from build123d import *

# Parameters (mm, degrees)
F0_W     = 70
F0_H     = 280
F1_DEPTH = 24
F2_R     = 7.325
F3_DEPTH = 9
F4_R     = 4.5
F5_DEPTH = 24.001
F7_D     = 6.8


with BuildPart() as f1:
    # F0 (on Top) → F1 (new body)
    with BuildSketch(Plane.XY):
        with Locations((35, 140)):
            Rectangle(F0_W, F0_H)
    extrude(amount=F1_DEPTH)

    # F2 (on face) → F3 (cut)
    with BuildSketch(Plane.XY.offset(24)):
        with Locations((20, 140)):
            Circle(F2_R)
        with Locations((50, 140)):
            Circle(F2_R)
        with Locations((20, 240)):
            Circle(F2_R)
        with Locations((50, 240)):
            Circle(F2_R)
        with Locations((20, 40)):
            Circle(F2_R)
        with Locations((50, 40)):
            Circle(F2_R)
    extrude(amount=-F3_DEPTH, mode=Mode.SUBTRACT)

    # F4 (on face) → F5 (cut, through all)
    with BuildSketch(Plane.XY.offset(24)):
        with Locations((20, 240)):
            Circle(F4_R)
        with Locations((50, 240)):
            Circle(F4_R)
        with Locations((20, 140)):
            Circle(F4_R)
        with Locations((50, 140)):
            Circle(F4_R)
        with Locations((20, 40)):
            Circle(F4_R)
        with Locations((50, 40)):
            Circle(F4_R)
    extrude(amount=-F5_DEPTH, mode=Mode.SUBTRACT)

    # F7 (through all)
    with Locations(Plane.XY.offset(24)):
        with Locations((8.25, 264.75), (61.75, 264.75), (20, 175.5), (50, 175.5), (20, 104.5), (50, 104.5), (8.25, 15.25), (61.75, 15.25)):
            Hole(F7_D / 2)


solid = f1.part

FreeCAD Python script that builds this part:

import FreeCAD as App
import Part
import Sketcher

V = App.Vector

doc = App.newDocument("Part")
body = doc.addObject("PartDesign::Body", "Body")

# Sketch on XY plane
sketch1 = doc.addObject("Sketcher::SketchObject", "Sketch")
body.addObject(sketch1)
sketch1.AttachmentSupport = (doc.XY_Plane, [""])
sketch1.MapMode = "FlatFace"
sketch1.addGeometry(Part.LineSegment(V(0, 280, 0), V(0, 0, 0)), False)
sketch1.addGeometry(Part.LineSegment(V(0, 0, 0), V(70, 0, 0)), False)
sketch1.addGeometry(Part.LineSegment(V(70, 0, 0), V(70, 280, 0)), False)
sketch1.addGeometry(Part.LineSegment(V(70, 280, 0), V(0, 280, 0)), False)
sketch1.addConstraint(Sketcher.Constraint("Coincident", 0, 2, 1, 1))
sketch1.addConstraint(Sketcher.Constraint("Coincident", 1, 2, 2, 1))
sketch1.addConstraint(Sketcher.Constraint("Coincident", 2, 2, 3, 1))
sketch1.addConstraint(Sketcher.Constraint("Coincident", 3, 2, 0, 1))
sketch1.addConstraint(Sketcher.Constraint("Vertical", 0))
sketch1.addConstraint(Sketcher.Constraint("Horizontal", 1))
sketch1.addConstraint(Sketcher.Constraint("Vertical", 2))
sketch1.addConstraint(Sketcher.Constraint("Horizontal", 3))
sketch1.addConstraint(Sketcher.Constraint("Coincident", 0, 2, -1, 1))
sketch1.addConstraint(Sketcher.Constraint("DistanceX", 1, 1, 1, 2, 70.0))
sketch1.addConstraint(Sketcher.Constraint("DistanceY", 0, 2, 0, 1, 280.0))
pad1 = doc.addObject("PartDesign::Pad", "Pad")
body.addObject(pad1)
pad1.Profile = sketch1
pad1.Length = 24

# Sketch on XY plane
sketch2 = doc.addObject("Sketcher::SketchObject", "Sketch001")
body.addObject(sketch2)
sketch2.AttachmentSupport = (doc.XY_Plane, [""])
sketch2.MapMode = "FlatFace"
sketch2.AttachmentOffset = App.Placement(V(0, 0, 24), App.Rotation())
sketch2.addGeometry(Part.Circle(V(20, 140, 0), V(0, 0, 1), 7), False)
sketch2.addGeometry(Part.Circle(V(50, 140, 0), V(0, 0, 1), 7), False)
sketch2.addGeometry(Part.Circle(V(20, 240, 0), V(0, 0, 1), 7), False)
sketch2.addGeometry(Part.Circle(V(50, 240, 0), V(0, 0, 1), 7), False)
sketch2.addGeometry(Part.Circle(V(20, 40, 0), V(0, 0, 1), 7), False)
sketch2.addGeometry(Part.Circle(V(50, 40, 0), V(0, 0, 1), 7), False)
sketch2.addConstraint(Sketcher.Constraint("Equal", 0, 1))
sketch2.addConstraint(Sketcher.Constraint("Equal", 1, 2))
sketch2.addConstraint(Sketcher.Constraint("Equal", 2, 3))
sketch2.addConstraint(Sketcher.Constraint("Equal", 3, 4))
sketch2.addConstraint(Sketcher.Constraint("Equal", 4, 5))
sketch2.addConstraint(Sketcher.Constraint("Horizontal", 0, 3, 1, 3))
sketch2.addConstraint(Sketcher.Constraint("Horizontal", 2, 3, 3, 3))
sketch2.addConstraint(Sketcher.Constraint("Horizontal", 4, 3, 5, 3))
sketch2.addConstraint(Sketcher.Constraint("Vertical", 0, 3, 2, 3))
sketch2.addConstraint(Sketcher.Constraint("Vertical", 1, 3, 3, 3))
sketch2.addConstraint(Sketcher.Constraint("Vertical", 2, 3, 4, 3))
sketch2.addConstraint(Sketcher.Constraint("Vertical", 3, 3, 5, 3))
sketch2.addConstraint(Sketcher.Constraint("Diameter", 0, 14.65))
sketch2.addConstraint(Sketcher.Constraint("DistanceX", -1, 1, 0, 3, 20.0))
sketch2.addConstraint(Sketcher.Constraint("DistanceY", -1, 1, 0, 3, 140.0))
sketch2.addConstraint(Sketcher.Constraint("DistanceX", -1, 1, 1, 3, 50.0))
sketch2.addConstraint(Sketcher.Constraint("DistanceY", -1, 1, 2, 3, 240.0))
sketch2.addConstraint(Sketcher.Constraint("DistanceY", -1, 1, 4, 3, 40.0))
pocket1 = doc.addObject("PartDesign::Pocket", "Pocket")
body.addObject(pocket1)
pocket1.Profile = sketch2
pocket1.Length = 9

# Sketch on XY plane
sketch3 = doc.addObject("Sketcher::SketchObject", "Sketch002")
body.addObject(sketch3)
sketch3.AttachmentSupport = (doc.XY_Plane, [""])
sketch3.MapMode = "FlatFace"
sketch3.AttachmentOffset = App.Placement(V(0, 0, 24), App.Rotation())
sketch3.addGeometry(Part.Circle(V(20, 240, 0), V(0, 0, 1), 4.5), False)
sketch3.addGeometry(Part.Circle(V(50, 240, 0), V(0, 0, 1), 4.5), False)
sketch3.addGeometry(Part.Circle(V(20, 140, 0), V(0, 0, 1), 4.5), False)
sketch3.addGeometry(Part.Circle(V(50, 140, 0), V(0, 0, 1), 4.5), False)
sketch3.addGeometry(Part.Circle(V(20, 40, 0), V(0, 0, 1), 4.5), False)
sketch3.addGeometry(Part.Circle(V(50, 40, 0), V(0, 0, 1), 4.5), False)
sketch3.addConstraint(Sketcher.Constraint("Equal", 0, 1))
sketch3.addConstraint(Sketcher.Constraint("Equal", 1, 2))
sketch3.addConstraint(Sketcher.Constraint("Equal", 2, 3))
sketch3.addConstraint(Sketcher.Constraint("Equal", 3, 4))
sketch3.addConstraint(Sketcher.Constraint("Equal", 4, 5))
sketch3.addConstraint(Sketcher.Constraint("Horizontal", 0, 3, 1, 3))
sketch3.addConstraint(Sketcher.Constraint("Horizontal", 2, 3, 3, 3))
sketch3.addConstraint(Sketcher.Constraint("Horizontal", 4, 3, 5, 3))
sketch3.addConstraint(Sketcher.Constraint("Vertical", 0, 3, 2, 3))
sketch3.addConstraint(Sketcher.Constraint("Vertical", 1, 3, 3, 3))
sketch3.addConstraint(Sketcher.Constraint("Vertical", 2, 3, 4, 3))
sketch3.addConstraint(Sketcher.Constraint("Vertical", 3, 3, 5, 3))
sketch3.addConstraint(Sketcher.Constraint("Diameter", 0, 9.0))
sketch3.addConstraint(Sketcher.Constraint("DistanceX", -1, 1, 0, 3, 20.0))
sketch3.addConstraint(Sketcher.Constraint("DistanceY", -1, 1, 0, 3, 240.0))
sketch3.addConstraint(Sketcher.Constraint("DistanceX", -1, 1, 1, 3, 50.0))
sketch3.addConstraint(Sketcher.Constraint("DistanceY", -1, 1, 2, 3, 140.0))
sketch3.addConstraint(Sketcher.Constraint("DistanceY", -1, 1, 4, 3, 40.0))
pocket2 = doc.addObject("PartDesign::Pocket", "Pocket001")
body.addObject(pocket2)
pocket2.Profile = sketch3
pocket2.Type = "ThroughAll"

# Sketch on XY plane
sketch4 = doc.addObject("Sketcher::SketchObject", "Sketch003")
body.addObject(sketch4)
sketch4.AttachmentSupport = (doc.XY_Plane, [""])
sketch4.MapMode = "FlatFace"
sketch4.AttachmentOffset = App.Placement(V(0, 0, 24), App.Rotation())
sketch4.addGeometry(Part.Circle(V(8.2, 264.8, 0), V(0, 0, 1), 3.4), False)
sketch4.addGeometry(Part.Circle(V(61.8, 264.8, 0), V(0, 0, 1), 3.4), False)
sketch4.addGeometry(Part.Circle(V(20, 175.5, 0), V(0, 0, 1), 3.4), False)
sketch4.addGeometry(Part.Circle(V(50, 175.5, 0), V(0, 0, 1), 3.4), False)
sketch4.addGeometry(Part.Circle(V(20, 104.5, 0), V(0, 0, 1), 3.4), False)
sketch4.addGeometry(Part.Circle(V(50, 104.5, 0), V(0, 0, 1), 3.4), False)
sketch4.addGeometry(Part.Circle(V(8.2, 15.2, 0), V(0, 0, 1), 3.4), False)
sketch4.addGeometry(Part.Circle(V(61.8, 15.2, 0), V(0, 0, 1), 3.4), False)
sketch4.addConstraint(Sketcher.Constraint("Equal", 0, 1))
sketch4.addConstraint(Sketcher.Constraint("Equal", 1, 2))
sketch4.addConstraint(Sketcher.Constraint("Equal", 2, 3))
sketch4.addConstraint(Sketcher.Constraint("Equal", 3, 4))
sketch4.addConstraint(Sketcher.Constraint("Equal", 4, 5))
sketch4.addConstraint(Sketcher.Constraint("Equal", 5, 6))
sketch4.addConstraint(Sketcher.Constraint("Equal", 6, 7))
sketch4.addConstraint(Sketcher.Constraint("Horizontal", 0, 3, 1, 3))
sketch4.addConstraint(Sketcher.Constraint("Horizontal", 2, 3, 3, 3))
sketch4.addConstraint(Sketcher.Constraint("Horizontal", 4, 3, 5, 3))
sketch4.addConstraint(Sketcher.Constraint("Horizontal", 6, 3, 7, 3))
sketch4.addConstraint(Sketcher.Constraint("Vertical", 2, 3, 4, 3))
sketch4.addConstraint(Sketcher.Constraint("Vertical", 3, 3, 5, 3))
sketch4.addConstraint(Sketcher.Constraint("Vertical", 0, 3, 6, 3))
sketch4.addConstraint(Sketcher.Constraint("Vertical", 1, 3, 7, 3))
sketch4.addConstraint(Sketcher.Constraint("Diameter", 0, 6.8))
sketch4.addConstraint(Sketcher.Constraint("DistanceX", -1, 1, 2, 3, 20.0))
sketch4.addConstraint(Sketcher.Constraint("DistanceX", -1, 1, 3, 3, 50.0))
sketch4.addConstraint(Sketcher.Constraint("DistanceY", 4, 3, 2, 3, 71.0))
sketch4.addConstraint(Sketcher.Constraint("DistanceY", -1, 1, 2, 3, 175.5))
sketch4.addConstraint(Sketcher.Constraint("DistanceX", 0, 3, 1, 3, 53.5))
sketch4.addConstraint(Sketcher.Constraint("DistanceY", 6, 3, 0, 3, 249.5))
sketch4.addConstraint(Sketcher.Constraint("DistanceX", -1, 1, 0, 3, 8.25))
sketch4.addConstraint(Sketcher.Constraint("DistanceY", -1, 1, 0, 3, 264.75))
doc.recompute()
hole = doc.addObject("PartDesign::Hole", "Hole")
body.addObject(hole)
hole.Profile = sketch4
hole.ThreadType = "None"
hole.Diameter = 6.8
hole.DepthType = "ThroughAll"

doc.recompute()
